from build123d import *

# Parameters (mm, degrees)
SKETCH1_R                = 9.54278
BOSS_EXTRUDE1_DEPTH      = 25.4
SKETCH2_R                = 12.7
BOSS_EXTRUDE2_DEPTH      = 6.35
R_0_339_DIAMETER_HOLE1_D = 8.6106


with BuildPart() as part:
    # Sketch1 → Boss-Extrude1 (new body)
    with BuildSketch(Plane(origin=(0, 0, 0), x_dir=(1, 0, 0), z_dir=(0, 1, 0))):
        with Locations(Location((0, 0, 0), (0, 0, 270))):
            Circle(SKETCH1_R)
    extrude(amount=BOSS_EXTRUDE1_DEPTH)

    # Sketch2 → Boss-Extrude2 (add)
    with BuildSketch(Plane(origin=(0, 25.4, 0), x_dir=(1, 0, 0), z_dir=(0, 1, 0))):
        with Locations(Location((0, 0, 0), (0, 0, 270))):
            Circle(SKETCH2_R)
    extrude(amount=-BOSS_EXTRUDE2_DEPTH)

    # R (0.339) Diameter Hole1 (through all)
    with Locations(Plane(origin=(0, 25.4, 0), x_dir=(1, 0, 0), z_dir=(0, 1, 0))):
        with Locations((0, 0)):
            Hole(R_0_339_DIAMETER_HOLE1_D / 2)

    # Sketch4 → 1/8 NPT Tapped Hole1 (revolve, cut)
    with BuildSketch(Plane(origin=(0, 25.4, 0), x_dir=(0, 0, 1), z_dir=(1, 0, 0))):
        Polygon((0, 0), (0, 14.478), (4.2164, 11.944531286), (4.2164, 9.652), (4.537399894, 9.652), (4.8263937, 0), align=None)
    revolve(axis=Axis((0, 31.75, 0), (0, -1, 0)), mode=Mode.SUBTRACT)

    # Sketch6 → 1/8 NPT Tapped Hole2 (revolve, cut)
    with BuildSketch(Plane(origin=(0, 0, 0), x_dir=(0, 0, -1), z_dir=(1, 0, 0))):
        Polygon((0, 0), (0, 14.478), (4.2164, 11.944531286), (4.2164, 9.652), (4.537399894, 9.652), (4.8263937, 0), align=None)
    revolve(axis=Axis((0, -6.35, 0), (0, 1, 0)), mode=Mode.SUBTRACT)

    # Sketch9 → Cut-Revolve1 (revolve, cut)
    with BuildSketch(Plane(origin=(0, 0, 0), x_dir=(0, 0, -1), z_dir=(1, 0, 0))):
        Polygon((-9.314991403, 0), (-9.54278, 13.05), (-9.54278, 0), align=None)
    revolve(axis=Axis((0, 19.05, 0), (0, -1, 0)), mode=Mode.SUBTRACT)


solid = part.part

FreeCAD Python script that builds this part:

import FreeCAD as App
import Part
import Sketcher

V = App.Vector
Q = App.Units.Quantity


def add_polygon(sketch, points):
    """Adds a closed chain of lines whose ends are joined by coincident constraints."""
    first, n = sketch.GeometryCount, len(points)
    for a, b in zip(points, points[1:] + points[:1]):
        sketch.addGeometry(Part.LineSegment(App.Vector(*a, 0), App.Vector(*b, 0)), False)
    for i in range(n):
        sketch.addConstraint(Sketcher.Constraint("Coincident", first + i, 2, first + (i + 1) % n, 1))

doc = App.newDocument("Part")
body = doc.addObject("PartDesign::Body", "Body")

# Sketch on XZ plane
sketch1 = body.newObject("Sketcher::SketchObject", "Sketch")
sketch1.AttachmentSupport = (doc.getObject("XZ_Plane"), [""])
sketch1.MapMode = "FlatFace"
sketch1.addGeometry(Part.Circle(V(0, 0, 0), V(0, 0, 1), 10), False)
sketch1.addConstraint(Sketcher.Constraint("Coincident", 0, 3, -1, 1))
sketch1.addConstraint(Sketcher.Constraint("Diameter", 0, Q("0.7514 in")))
pad1 = body.newObject("PartDesign::Pad", "Pad")
pad1.Profile = sketch1
pad1.Length = Q("1 in")
pad1.Reversed = True

# Sketch on XZ plane
sketch2 = body.newObject("Sketcher::SketchObject", "Sketch001")
sketch2.AttachmentSupport = (doc.getObject("XZ_Plane"), [""])
sketch2.MapMode = "FlatFace"
sketch2.AttachmentOffset = App.Placement(V(0, 0, -1 * 25.4), App.Rotation())
sketch2.addGeometry(Part.Circle(V(0, 0, 0), V(0, 0, 1), 13), False)
sketch2.addConstraint(Sketcher.Constraint("Coincident", 0, 3, -1, 1))
sketch2.addConstraint(Sketcher.Constraint("Diameter", 0, Q("1 in")))
pad2 = body.newObject("PartDesign::Pad", "Pad001")
pad2.Profile = sketch2
pad2.Length = Q("0.25 in")

# Sketch on XZ plane
sketch3 = body.newObject("Sketcher::SketchObject", "Sketch002")
sketch3.AttachmentSupport = (doc.getObject("XZ_Plane"), [""])
sketch3.MapMode = "FlatFace"
sketch3.AttachmentOffset = App.Placement(V(0, 0, -1 * 25.4), App.Rotation())
sketch3.addGeometry(Part.Circle(V(0, 0, 0), V(0, 0, 1), 4.3), False)
sketch3.addConstraint(Sketcher.Constraint("Coincident", 0, 3, -1, 1))
sketch3.addConstraint(Sketcher.Constraint("Diameter", 0, Q("0.339 in")))
doc.recompute()
hole = body.newObject("PartDesign::Hole", "Hole")
hole.Profile = sketch3
hole.ThreadType = "None"
hole.Diameter = Q("0.339 in")
hole.DepthType = "ThroughAll"
hole.Reversed = True

# Sketch on YZ plane
sketch4 = body.newObject("Sketcher::SketchObject", "Sketch003")
sketch4.AttachmentSupport = (doc.getObject("YZ_Plane"), [""])
sketch4.MapMode = "FlatFace"
add_polygon(sketch4, [(10.92, 0), (25.4, 0), (25.4, 4.83), (15.75, 4.54), (15.75, 4.22), (13.46, 4.22)])  # lines 0-5
sketch4.addConstraint(Sketcher.Constraint("Horizontal", 0))
sketch4.addConstraint(Sketcher.Constraint("Vertical", 1))
sketch4.addConstraint(Sketcher.Constraint("Vertical", 3))
sketch4.addConstraint(Sketcher.Constraint("Horizontal", 4))
sketch4.addConstraint(Sketcher.Constraint("PointOnObject", 0, 2, -1))
sketch4.addConstraint(Sketcher.Constraint("DistanceX", -1, 1, 0, 2, Q("1 in")))
sketch4.addConstraint(Sketcher.Constraint("Angle", 5, Q("-121 deg")))
sketch4.addConstraint(Sketcher.Constraint("DistanceX", 0, 1, 0, 2, Q("0.57 in")))
sketch4.addConstraint(Sketcher.Constraint("DistanceX", -1, 1, 2, 2, Q("0.62 in")))
sketch4.addConstraint(Sketcher.Constraint("DistanceY", -1, 1, 3, 2, Q("0.166 in")))
sketch4.addConstraint(Sketcher.Constraint("DistanceY", 3, 2, 3, 1, Q("0.321 mm")))
sketch4.addConstraint(Sketcher.Constraint("DistanceY", 1, 1, 1, 2, Q("4.826394 mm")))
groove = body.newObject("PartDesign::Groove", "Groove")
groove.Profile = sketch4
groove.ReferenceAxis = (sketch4, ["H_Axis"])
groove.Angle = 360

# Sketch on YZ plane
sketch5 = body.newObject("Sketcher::SketchObject", "Sketch004")
sketch5.AttachmentSupport = (doc.getObject("YZ_Plane"), [""])
sketch5.MapMode = "FlatFace"
add_polygon(sketch5, [(14.48, 0), (0, 0), (0, -4.83), (9.65, -4.54), (9.65, -4.22), (11.94, -4.22)])  # lines 0-5
sketch5.addConstraint(Sketcher.Constraint("Horizontal", 0))
sketch5.addConstraint(Sketcher.Constraint("Vertical", 1))
sketch5.addConstraint(Sketcher.Constraint("Vertical", 3))
sketch5.addConstraint(Sketcher.Constraint("Horizontal", 4))
sketch5.addConstraint(Sketcher.Constraint("Coincident", 0, 2, -1, 1))
sketch5.addConstraint(Sketcher.Constraint("Angle", 5, Q("59 deg")))
sketch5.addConstraint(Sketcher.Constraint("DistanceX", 0, 2, 0, 1, Q("0.57 in")))
sketch5.addConstraint(Sketcher.Constraint("DistanceX", -1, 1, 2, 2, Q("0.38 in")))
sketch5.addConstraint(Sketcher.Constraint("DistanceY", 3, 2, -1, 1, Q("0.166 in")))
sketch5.addConstraint(Sketcher.Constraint("DistanceY", 3, 1, 3, 2, Q("0.321 mm")))
sketch5.addConstraint(Sketcher.Constraint("DistanceY", 1, 2, 1, 1, Q("4.826394 mm")))
groove2 = body.newObject("PartDesign::Groove", "Groove001")
groove2.Profile = sketch5
groove2.ReferenceAxis = (sketch5, ["H_Axis"])
groove2.Angle = 360

# Sketch on YZ plane
sketch6 = body.newObject("Sketcher::SketchObject", "Sketch005")
sketch6.AttachmentSupport = (doc.getObject("YZ_Plane"), [""])
sketch6.MapMode = "FlatFace"
add_polygon(sketch6, [(0, 9.31), (13.05, 9.54), (0, 9.54)])  # lines 0-2
sketch6.addConstraint(Sketcher.Constraint("Horizontal", 1))
sketch6.addConstraint(Sketcher.Constraint("Vertical", 2))
sketch6.addConstraint(Sketcher.Constraint("PointOnObject", 1, 2, -2))
sketch6.addConstraint(Sketcher.Constraint("Angle", 0, Q("1 deg")))
sketch6.addConstraint(Sketcher.Constraint("DistanceX", 1, 2, 1, 1, Q("13.05 mm")))
sketch6.addConstraint(Sketcher.Constraint("DistanceY", -1, 1, 0, 2, Q("0.3757 in")))
groove3 = body.newObject("PartDesign::Groove", "Groove002")
groove3.Profile = sketch6
groove3.ReferenceAxis = (sketch6, ["H_Axis"])
groove3.Angle = 360

doc.recompute()
